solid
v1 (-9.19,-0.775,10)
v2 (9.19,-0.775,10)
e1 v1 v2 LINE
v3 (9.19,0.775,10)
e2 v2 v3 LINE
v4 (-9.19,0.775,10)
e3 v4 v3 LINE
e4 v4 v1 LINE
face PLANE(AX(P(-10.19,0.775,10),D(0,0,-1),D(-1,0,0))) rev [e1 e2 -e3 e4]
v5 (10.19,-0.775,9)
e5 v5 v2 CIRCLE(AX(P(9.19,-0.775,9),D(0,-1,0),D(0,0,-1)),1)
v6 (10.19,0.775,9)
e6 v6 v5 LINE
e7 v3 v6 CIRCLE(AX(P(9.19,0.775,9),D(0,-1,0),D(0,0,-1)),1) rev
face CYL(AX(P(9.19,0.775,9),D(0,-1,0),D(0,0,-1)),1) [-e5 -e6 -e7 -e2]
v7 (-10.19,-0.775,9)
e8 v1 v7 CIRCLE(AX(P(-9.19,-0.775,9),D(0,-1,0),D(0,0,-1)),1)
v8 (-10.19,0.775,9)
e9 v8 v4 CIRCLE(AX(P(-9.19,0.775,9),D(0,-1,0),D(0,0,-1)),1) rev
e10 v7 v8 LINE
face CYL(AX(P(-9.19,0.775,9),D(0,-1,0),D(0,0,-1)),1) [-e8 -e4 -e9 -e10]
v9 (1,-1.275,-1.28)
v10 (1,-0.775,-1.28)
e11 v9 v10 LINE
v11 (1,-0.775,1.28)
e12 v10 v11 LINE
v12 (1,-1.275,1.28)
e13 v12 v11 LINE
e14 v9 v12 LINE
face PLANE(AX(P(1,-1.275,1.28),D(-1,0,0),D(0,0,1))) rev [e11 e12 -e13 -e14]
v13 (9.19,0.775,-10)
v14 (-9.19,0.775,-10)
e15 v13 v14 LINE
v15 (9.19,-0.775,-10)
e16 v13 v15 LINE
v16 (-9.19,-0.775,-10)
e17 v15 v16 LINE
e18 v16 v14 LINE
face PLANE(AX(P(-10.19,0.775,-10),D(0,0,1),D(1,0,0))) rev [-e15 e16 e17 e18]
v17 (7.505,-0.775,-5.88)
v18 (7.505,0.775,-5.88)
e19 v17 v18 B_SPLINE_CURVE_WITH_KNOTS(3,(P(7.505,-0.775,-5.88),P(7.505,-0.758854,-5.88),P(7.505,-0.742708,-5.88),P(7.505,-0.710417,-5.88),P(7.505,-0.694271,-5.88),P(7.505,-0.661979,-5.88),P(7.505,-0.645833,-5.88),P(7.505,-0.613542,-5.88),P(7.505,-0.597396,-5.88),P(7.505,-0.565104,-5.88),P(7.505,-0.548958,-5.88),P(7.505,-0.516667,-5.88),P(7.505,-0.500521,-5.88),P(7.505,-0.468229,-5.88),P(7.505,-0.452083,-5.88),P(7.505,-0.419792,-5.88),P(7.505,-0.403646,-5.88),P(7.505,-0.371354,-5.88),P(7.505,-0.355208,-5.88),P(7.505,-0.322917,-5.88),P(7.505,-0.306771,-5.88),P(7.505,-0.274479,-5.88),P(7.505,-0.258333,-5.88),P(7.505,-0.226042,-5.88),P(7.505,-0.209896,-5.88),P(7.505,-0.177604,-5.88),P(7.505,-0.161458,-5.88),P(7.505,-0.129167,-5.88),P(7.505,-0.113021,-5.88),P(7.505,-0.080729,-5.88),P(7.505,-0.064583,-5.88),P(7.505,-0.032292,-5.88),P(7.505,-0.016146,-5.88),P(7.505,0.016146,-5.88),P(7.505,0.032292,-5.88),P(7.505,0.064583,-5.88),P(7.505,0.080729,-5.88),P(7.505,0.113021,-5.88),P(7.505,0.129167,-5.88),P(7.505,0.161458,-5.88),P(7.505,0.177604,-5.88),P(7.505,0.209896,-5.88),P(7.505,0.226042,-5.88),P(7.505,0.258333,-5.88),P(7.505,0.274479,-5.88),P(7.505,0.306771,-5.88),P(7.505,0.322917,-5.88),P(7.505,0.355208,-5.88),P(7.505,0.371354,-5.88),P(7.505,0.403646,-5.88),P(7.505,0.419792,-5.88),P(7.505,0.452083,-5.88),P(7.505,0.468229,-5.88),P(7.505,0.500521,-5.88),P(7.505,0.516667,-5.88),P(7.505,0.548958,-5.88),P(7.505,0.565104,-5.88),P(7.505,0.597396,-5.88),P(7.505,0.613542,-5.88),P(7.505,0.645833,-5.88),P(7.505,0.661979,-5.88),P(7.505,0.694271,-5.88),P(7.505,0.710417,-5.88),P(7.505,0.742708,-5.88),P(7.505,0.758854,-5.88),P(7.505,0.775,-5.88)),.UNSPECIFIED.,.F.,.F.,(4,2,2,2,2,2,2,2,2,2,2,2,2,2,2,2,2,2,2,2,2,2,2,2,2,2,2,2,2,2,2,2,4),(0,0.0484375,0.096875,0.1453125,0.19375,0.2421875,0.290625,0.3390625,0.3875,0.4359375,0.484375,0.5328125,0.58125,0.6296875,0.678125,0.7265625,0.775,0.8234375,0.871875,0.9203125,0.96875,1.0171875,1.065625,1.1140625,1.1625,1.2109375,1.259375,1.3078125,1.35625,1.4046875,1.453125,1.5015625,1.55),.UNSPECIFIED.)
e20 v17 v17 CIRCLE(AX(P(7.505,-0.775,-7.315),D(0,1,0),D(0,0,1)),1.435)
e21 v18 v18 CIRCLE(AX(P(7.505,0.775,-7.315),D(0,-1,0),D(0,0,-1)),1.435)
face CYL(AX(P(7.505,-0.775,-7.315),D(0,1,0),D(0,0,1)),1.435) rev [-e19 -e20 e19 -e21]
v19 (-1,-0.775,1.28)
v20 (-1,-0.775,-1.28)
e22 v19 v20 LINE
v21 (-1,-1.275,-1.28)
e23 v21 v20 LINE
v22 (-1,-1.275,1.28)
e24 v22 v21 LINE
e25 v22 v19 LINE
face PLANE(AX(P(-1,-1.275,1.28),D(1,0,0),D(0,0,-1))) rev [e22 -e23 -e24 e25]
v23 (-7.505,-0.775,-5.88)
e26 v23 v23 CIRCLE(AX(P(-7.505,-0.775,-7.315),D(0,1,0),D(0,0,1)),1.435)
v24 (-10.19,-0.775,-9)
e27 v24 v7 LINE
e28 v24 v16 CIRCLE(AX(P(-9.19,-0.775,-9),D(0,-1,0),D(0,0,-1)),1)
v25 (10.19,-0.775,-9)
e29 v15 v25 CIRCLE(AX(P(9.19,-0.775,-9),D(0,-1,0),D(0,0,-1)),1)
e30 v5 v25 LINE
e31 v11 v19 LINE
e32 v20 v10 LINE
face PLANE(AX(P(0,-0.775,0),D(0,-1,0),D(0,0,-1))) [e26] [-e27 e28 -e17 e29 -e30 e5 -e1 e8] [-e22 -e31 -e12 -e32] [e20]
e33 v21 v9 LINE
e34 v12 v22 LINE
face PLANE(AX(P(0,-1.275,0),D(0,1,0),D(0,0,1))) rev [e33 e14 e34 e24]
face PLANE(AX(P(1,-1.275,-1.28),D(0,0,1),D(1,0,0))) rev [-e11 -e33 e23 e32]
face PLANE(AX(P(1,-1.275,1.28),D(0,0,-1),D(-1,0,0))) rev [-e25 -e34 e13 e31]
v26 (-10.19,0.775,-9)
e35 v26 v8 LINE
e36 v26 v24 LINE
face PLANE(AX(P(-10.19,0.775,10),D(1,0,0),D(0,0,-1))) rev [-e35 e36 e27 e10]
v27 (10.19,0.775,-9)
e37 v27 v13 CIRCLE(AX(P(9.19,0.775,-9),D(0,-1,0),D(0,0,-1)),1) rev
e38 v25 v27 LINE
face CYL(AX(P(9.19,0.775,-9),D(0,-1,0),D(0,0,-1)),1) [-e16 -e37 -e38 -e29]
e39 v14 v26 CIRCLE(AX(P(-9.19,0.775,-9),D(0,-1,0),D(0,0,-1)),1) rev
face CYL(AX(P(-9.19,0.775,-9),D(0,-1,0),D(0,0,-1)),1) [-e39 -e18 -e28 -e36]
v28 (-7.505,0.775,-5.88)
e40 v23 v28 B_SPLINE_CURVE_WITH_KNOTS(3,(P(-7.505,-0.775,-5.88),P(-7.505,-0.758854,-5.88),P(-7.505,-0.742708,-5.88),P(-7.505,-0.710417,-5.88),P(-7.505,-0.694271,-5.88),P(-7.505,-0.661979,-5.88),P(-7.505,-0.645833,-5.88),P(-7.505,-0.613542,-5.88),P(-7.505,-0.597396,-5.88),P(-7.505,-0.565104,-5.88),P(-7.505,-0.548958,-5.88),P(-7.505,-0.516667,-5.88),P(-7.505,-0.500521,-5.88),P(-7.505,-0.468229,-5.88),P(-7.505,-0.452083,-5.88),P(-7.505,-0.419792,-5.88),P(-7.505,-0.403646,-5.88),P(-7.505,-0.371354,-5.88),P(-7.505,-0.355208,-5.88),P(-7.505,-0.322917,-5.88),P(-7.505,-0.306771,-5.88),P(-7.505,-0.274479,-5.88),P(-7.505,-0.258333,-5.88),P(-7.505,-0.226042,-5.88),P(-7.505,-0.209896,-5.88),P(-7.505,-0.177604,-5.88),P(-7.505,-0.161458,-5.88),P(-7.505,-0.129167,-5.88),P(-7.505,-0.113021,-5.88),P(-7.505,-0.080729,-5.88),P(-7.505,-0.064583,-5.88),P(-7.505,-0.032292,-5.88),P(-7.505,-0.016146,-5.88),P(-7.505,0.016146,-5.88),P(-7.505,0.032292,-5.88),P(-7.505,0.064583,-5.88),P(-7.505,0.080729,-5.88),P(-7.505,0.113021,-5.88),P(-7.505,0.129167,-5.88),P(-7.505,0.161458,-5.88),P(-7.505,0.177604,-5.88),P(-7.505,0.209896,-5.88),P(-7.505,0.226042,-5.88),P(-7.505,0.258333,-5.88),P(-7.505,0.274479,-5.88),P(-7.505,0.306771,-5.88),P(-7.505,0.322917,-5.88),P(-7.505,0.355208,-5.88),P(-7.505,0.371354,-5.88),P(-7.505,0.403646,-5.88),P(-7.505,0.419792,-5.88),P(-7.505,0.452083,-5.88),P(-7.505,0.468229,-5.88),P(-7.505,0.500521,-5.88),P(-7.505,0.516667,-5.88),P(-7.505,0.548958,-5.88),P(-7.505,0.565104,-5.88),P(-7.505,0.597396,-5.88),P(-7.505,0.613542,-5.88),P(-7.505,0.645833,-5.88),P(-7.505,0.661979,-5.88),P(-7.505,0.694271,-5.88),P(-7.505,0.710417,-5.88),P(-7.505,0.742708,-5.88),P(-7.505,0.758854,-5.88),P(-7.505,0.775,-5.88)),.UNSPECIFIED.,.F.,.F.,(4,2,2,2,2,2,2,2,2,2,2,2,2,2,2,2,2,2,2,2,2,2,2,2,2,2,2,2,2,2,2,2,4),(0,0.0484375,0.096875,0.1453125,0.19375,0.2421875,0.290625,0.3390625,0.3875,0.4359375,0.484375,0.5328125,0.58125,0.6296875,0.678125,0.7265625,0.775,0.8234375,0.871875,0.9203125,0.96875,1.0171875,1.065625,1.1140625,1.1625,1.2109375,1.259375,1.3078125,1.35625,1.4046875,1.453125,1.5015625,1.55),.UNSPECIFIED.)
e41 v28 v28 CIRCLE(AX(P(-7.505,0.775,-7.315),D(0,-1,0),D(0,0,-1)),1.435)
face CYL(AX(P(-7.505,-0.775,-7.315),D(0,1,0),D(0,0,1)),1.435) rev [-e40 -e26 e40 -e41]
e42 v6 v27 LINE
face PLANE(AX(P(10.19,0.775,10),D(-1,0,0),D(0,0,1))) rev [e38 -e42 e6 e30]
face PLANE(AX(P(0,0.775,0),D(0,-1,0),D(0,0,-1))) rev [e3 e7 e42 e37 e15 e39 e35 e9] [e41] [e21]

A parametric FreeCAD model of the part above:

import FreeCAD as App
import Part
import Sketcher
from FreeCAD import Vector
Q = App.Units.Quantity


def edges_at(feature, points):
    """Names of the edges that pass closest to the given points."""
    edges = feature.Shape.Edges
    near = lambda p: min(range(len(edges)), key=lambda i: edges[i].distToShape(Part.Vertex(*p))[0])
    return sorted({f"Edge{near(p) + 1}" for p in points})

doc = App.newDocument("Part")
body = doc.addObject("PartDesign::Body", "Body")

# Sketch on XZ plane
sketch1 = doc.addObject("Sketcher::SketchObject", "Sketch")
body.addObject(sketch1)
sketch1.AttachmentSupport = (doc.XZ_Plane, [""])
sketch1.MapMode = "FlatFace"
sketch1.addGeometry(Part.LineSegment(Vector(-10.19, -10, 0), Vector(-10.19, 10, 0)), False)
sketch1.addGeometry(Part.LineSegment(Vector(-10.19, 10, 0), Vector(10.19, 10, 0)), False)
sketch1.addGeometry(Part.LineSegment(Vector(10.19, 10, 0), Vector(10.19, -10, 0)), False)
sketch1.addGeometry(Part.LineSegment(Vector(10.19, -10, 0), Vector(-10.19, -10, 0)), False)
sketch1.addConstraint(Sketcher.Constraint("Coincident", 0, 2, 1, 1))
sketch1.addConstraint(Sketcher.Constraint("Coincident", 1, 2, 2, 1))
sketch1.addConstraint(Sketcher.Constraint("Coincident", 2, 2, 3, 1))
sketch1.addConstraint(Sketcher.Constraint("Coincident", 3, 2, 0, 1))
sketch1.addConstraint(Sketcher.Constraint("Vertical", 0))
sketch1.addConstraint(Sketcher.Constraint("Horizontal", 1))
sketch1.addConstraint(Sketcher.Constraint("Vertical", 2))
sketch1.addConstraint(Sketcher.Constraint("Horizontal", 3))
sketch1.addConstraint(Sketcher.Constraint("Symmetric", 0, 2, 2, 2, -1, 1))
sketch1.addConstraint(Sketcher.Constraint("DistanceY", 0, 1, 0, 2, Q("20 mm")))
sketch1.addConstraint(Sketcher.Constraint("DistanceX", 1, 1, 1, 2, Q("20.38 mm")))
pad1 = doc.addObject("PartDesign::Pad", "Pad")
body.addObject(pad1)
pad1.Profile = sketch1
pad1.Length = 1.55
pad1.Midplane = True

# Sketch on XZ plane
sketch2 = doc.addObject("Sketcher::SketchObject", "Sketch001")
body.addObject(sketch2)
sketch2.AttachmentSupport = (doc.XZ_Plane, [""])
sketch2.MapMode = "FlatFace"
sketch2.AttachmentOffset = App.Placement(Vector(0, 0, -0.775), App.Rotation())
sketch2.addGeometry(Part.Circle(Vector(-7.505, -7.315, 0), Vector(0, 0, 1), 1.435), False)
sketch2.addGeometry(Part.Circle(Vector(7.505, -7.315, 0), Vector(0, 0, 1), 1.435), False)
sketch2.addConstraint(Sketcher.Constraint("Equal", 0, 1))
sketch2.addConstraint(Sketcher.Constraint("Symmetric", 0, 3, 1, 3, -2))
sketch2.addConstraint(Sketcher.Constraint("Diameter", 0, Q("2.87 mm")))
sketch2.addConstraint(Sketcher.Constraint("DistanceX", 0, 3, 1, 3, Q("15.01 mm")))
sketch2.addConstraint(Sketcher.Constraint("DistanceY", 0, 3, -1, 1, Q("7.315 mm")))
pocket1 = doc.addObject("PartDesign::Pocket", "Pocket")
body.addObject(pocket1)
pocket1.Profile = sketch2
pocket1.Type = "ThroughAll"
pocket1.Midplane = True
doc.recompute()

fillet = doc.addObject("PartDesign::Fillet", "Fillet")
body.addObject(fillet)
fillet.Base = (pocket1, edges_at(pocket1, [
    (10.19, 0, 10),
    (-10.19, 0, 10),
    (-10.19, 0, -10),
    (10.19, 0, -10),
]))
fillet.Radius = 1

# Sketch on XZ plane
sketch3 = doc.addObject("Sketcher::SketchObject", "Sketch002")
body.addObject(sketch3)
sketch3.AttachmentSupport = (doc.XZ_Plane, [""])
sketch3.MapMode = "FlatFace"
sketch3.AttachmentOffset = App.Placement(Vector(0, 0, 0.775), App.Rotation())
sketch3.addGeometry(Part.LineSegment(Vector(1, -1.28, 0), Vector(1, 1.28, 0)), False)
sketch3.addGeometry(Part.LineSegment(Vector(1, 1.28, 0), Vector(-1, 1.28, 0)), False)
sketch3.addGeometry(Part.LineSegment(Vector(-1, 1.28, 0), Vector(-1, -1.28, 0)), False)
sketch3.addGeometry(Part.LineSegment(Vector(-1, -1.28, 0), Vector(1, -1.28, 0)), False)
sketch3.addConstraint(Sketcher.Constraint("Coincident", 0, 2, 1, 1))
sketch3.addConstraint(Sketcher.Constraint("Coincident", 1, 2, 2, 1))
sketch3.addConstraint(Sketcher.Constraint("Coincident", 2, 2, 3, 1))
sketch3.addConstraint(Sketcher.Constraint("Coincident", 3, 2, 0, 1))
sketch3.addConstraint(Sketcher.Constraint("Vertical", 0))
sketch3.addConstraint(Sketcher.Constraint("Horizontal", 1))
sketch3.addConstraint(Sketcher.Constraint("Vertical", 2))
sketch3.addConstraint(Sketcher.Constraint("Horizontal", 3))
sketch3.addConstraint(Sketcher.Constraint("Symmetric", 0, 2, 2, 2, -1, 1))
sketch3.addConstraint(Sketcher.Constraint("DistanceX", 1, 2, 1, 1, Q("2 mm")))
sketch3.addConstraint(Sketcher.Constraint("DistanceY", 0, 1, 0, 2, Q("2.56 mm")))
pad2 = doc.addObject("PartDesign::Pad", "Pad001")
body.addObject(pad2)
pad2.Profile = sketch3
pad2.Length = 0.5

doc.recompute()
